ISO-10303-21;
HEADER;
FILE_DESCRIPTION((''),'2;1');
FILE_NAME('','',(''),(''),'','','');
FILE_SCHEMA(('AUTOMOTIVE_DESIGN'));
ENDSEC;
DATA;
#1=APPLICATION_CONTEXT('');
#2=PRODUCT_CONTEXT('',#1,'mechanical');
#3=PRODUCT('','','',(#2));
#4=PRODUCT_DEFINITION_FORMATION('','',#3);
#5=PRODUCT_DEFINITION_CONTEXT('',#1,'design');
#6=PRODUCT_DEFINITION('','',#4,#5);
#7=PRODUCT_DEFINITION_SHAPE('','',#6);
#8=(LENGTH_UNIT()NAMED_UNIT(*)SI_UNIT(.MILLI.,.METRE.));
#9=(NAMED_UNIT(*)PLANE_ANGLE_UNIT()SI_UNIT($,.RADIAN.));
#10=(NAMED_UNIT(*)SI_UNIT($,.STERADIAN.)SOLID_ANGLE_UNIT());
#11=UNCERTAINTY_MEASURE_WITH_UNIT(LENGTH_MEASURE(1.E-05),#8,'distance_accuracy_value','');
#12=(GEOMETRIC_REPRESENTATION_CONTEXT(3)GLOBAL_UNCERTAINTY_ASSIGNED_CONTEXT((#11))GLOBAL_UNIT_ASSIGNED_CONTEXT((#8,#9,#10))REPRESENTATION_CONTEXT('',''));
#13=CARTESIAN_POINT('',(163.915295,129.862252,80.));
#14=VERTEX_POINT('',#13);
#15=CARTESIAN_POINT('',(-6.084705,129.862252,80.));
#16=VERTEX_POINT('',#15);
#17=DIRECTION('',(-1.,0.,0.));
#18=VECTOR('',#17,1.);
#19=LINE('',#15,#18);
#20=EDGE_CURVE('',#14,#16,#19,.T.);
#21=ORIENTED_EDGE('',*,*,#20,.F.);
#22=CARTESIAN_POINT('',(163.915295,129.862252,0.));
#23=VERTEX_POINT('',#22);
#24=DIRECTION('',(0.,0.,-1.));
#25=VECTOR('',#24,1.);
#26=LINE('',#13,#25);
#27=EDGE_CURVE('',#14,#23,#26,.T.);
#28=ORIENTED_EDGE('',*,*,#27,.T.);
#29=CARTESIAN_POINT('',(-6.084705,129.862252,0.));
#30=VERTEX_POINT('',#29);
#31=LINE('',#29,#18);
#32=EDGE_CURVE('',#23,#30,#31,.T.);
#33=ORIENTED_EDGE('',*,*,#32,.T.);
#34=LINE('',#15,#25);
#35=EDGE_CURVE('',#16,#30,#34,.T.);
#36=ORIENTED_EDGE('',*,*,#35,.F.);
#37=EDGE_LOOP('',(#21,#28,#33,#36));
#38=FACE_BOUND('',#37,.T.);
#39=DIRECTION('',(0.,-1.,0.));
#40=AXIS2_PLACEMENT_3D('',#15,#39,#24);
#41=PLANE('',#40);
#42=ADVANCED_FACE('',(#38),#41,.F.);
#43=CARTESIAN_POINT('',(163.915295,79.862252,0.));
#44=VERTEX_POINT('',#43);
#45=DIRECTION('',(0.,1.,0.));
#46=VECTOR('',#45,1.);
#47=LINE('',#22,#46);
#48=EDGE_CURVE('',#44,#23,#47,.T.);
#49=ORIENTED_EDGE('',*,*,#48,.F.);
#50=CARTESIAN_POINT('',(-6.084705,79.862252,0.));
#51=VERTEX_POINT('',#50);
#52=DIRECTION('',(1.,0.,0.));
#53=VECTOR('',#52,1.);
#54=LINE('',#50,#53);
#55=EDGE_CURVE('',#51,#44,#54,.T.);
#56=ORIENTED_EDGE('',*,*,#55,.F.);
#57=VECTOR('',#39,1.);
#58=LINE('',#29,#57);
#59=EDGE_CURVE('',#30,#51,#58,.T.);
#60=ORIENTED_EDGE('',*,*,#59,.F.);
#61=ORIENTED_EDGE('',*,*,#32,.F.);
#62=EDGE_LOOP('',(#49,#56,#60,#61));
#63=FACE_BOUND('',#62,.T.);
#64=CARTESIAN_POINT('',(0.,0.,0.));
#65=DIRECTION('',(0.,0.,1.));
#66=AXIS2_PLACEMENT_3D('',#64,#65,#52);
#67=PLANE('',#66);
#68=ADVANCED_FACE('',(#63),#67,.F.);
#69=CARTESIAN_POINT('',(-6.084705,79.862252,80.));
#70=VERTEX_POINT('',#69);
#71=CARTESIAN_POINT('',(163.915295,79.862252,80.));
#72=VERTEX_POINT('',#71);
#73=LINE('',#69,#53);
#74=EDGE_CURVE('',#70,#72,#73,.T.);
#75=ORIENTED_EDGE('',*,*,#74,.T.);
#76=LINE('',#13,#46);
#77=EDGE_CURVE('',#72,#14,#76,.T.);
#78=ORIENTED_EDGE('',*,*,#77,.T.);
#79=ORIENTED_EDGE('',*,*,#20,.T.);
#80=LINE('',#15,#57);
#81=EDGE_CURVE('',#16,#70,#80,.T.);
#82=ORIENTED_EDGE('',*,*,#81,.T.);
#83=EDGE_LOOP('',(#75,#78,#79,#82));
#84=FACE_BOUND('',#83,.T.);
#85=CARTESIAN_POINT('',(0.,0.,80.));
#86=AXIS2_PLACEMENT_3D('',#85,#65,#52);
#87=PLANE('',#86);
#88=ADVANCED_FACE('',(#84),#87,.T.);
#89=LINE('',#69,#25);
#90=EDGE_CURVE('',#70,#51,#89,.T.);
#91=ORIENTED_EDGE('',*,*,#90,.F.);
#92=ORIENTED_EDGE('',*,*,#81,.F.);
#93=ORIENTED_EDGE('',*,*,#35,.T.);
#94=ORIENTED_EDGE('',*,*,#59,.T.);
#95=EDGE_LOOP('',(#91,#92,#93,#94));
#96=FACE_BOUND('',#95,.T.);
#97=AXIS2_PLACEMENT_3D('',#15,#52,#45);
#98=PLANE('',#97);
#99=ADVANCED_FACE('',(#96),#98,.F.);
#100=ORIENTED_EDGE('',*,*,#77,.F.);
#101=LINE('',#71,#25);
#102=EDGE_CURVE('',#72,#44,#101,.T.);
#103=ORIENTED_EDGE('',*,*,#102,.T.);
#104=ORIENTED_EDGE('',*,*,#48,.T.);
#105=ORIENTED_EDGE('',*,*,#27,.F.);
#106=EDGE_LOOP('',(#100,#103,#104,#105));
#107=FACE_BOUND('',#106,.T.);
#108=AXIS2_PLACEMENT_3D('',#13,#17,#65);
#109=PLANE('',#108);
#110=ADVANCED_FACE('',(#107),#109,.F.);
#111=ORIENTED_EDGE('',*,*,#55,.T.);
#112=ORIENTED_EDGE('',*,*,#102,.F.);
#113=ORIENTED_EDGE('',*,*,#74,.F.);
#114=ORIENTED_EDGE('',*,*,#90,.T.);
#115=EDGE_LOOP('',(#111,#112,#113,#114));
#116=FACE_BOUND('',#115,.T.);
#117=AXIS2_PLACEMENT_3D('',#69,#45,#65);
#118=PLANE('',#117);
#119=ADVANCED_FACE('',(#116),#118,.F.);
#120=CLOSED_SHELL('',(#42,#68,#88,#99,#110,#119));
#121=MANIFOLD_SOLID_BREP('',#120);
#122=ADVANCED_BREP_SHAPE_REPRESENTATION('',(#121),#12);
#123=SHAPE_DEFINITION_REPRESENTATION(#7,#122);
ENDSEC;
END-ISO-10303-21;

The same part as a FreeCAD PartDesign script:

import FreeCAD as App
import Part
import Sketcher


def add_polygon(sketch, points):
    """Adds a closed chain of lines whose ends are joined by coincident constraints."""
    first, n = sketch.GeometryCount, len(points)
    for a, b in zip(points, points[1:] + points[:1]):
        sketch.addGeometry(Part.LineSegment(App.Vector(*a, 0), App.Vector(*b, 0)), False)
    for i in range(n):
        sketch.addConstraint(Sketcher.Constraint("Coincident", first + i, 2, first + (i + 1) % n, 1))

doc = App.newDocument("Part")
body = doc.addObject("PartDesign::Body", "Body")

# Sketch on XY plane
sketch1 = body.newObject("Sketcher::SketchObject", "Sketch")
sketch1.AttachmentSupport = (doc.getObject("XY_Plane"), [""])
sketch1.MapMode = "FlatFace"
add_polygon(sketch1, [(-6, 130), (-6, 80), (164, 80), (164, 130)])  # lines 0-3
sketch1.addConstraint(Sketcher.Constraint("Vertical", 0))
sketch1.addConstraint(Sketcher.Constraint("Horizontal", 1))
sketch1.addConstraint(Sketcher.Constraint("Vertical", 2))
sketch1.addConstraint(Sketcher.Constraint("Horizontal", 3))
sketch1.addConstraint(Sketcher.Constraint("DistanceX", 1, 1, 1, 2, 170.0))
sketch1.addConstraint(Sketcher.Constraint("DistanceY", 0, 2, 0, 1, 50.0))
sketch1.addConstraint(Sketcher.Constraint("DistanceY", -1, 1, 0, 2, 79.862252))
sketch1.addConstraint(Sketcher.Constraint("DistanceX", 0, 2, -1, 1, 6.084705))
pad1 = body.newObject("PartDesign::Pad", "Pad")
pad1.Profile = sketch1
pad1.Length = 80

doc.recompute()
